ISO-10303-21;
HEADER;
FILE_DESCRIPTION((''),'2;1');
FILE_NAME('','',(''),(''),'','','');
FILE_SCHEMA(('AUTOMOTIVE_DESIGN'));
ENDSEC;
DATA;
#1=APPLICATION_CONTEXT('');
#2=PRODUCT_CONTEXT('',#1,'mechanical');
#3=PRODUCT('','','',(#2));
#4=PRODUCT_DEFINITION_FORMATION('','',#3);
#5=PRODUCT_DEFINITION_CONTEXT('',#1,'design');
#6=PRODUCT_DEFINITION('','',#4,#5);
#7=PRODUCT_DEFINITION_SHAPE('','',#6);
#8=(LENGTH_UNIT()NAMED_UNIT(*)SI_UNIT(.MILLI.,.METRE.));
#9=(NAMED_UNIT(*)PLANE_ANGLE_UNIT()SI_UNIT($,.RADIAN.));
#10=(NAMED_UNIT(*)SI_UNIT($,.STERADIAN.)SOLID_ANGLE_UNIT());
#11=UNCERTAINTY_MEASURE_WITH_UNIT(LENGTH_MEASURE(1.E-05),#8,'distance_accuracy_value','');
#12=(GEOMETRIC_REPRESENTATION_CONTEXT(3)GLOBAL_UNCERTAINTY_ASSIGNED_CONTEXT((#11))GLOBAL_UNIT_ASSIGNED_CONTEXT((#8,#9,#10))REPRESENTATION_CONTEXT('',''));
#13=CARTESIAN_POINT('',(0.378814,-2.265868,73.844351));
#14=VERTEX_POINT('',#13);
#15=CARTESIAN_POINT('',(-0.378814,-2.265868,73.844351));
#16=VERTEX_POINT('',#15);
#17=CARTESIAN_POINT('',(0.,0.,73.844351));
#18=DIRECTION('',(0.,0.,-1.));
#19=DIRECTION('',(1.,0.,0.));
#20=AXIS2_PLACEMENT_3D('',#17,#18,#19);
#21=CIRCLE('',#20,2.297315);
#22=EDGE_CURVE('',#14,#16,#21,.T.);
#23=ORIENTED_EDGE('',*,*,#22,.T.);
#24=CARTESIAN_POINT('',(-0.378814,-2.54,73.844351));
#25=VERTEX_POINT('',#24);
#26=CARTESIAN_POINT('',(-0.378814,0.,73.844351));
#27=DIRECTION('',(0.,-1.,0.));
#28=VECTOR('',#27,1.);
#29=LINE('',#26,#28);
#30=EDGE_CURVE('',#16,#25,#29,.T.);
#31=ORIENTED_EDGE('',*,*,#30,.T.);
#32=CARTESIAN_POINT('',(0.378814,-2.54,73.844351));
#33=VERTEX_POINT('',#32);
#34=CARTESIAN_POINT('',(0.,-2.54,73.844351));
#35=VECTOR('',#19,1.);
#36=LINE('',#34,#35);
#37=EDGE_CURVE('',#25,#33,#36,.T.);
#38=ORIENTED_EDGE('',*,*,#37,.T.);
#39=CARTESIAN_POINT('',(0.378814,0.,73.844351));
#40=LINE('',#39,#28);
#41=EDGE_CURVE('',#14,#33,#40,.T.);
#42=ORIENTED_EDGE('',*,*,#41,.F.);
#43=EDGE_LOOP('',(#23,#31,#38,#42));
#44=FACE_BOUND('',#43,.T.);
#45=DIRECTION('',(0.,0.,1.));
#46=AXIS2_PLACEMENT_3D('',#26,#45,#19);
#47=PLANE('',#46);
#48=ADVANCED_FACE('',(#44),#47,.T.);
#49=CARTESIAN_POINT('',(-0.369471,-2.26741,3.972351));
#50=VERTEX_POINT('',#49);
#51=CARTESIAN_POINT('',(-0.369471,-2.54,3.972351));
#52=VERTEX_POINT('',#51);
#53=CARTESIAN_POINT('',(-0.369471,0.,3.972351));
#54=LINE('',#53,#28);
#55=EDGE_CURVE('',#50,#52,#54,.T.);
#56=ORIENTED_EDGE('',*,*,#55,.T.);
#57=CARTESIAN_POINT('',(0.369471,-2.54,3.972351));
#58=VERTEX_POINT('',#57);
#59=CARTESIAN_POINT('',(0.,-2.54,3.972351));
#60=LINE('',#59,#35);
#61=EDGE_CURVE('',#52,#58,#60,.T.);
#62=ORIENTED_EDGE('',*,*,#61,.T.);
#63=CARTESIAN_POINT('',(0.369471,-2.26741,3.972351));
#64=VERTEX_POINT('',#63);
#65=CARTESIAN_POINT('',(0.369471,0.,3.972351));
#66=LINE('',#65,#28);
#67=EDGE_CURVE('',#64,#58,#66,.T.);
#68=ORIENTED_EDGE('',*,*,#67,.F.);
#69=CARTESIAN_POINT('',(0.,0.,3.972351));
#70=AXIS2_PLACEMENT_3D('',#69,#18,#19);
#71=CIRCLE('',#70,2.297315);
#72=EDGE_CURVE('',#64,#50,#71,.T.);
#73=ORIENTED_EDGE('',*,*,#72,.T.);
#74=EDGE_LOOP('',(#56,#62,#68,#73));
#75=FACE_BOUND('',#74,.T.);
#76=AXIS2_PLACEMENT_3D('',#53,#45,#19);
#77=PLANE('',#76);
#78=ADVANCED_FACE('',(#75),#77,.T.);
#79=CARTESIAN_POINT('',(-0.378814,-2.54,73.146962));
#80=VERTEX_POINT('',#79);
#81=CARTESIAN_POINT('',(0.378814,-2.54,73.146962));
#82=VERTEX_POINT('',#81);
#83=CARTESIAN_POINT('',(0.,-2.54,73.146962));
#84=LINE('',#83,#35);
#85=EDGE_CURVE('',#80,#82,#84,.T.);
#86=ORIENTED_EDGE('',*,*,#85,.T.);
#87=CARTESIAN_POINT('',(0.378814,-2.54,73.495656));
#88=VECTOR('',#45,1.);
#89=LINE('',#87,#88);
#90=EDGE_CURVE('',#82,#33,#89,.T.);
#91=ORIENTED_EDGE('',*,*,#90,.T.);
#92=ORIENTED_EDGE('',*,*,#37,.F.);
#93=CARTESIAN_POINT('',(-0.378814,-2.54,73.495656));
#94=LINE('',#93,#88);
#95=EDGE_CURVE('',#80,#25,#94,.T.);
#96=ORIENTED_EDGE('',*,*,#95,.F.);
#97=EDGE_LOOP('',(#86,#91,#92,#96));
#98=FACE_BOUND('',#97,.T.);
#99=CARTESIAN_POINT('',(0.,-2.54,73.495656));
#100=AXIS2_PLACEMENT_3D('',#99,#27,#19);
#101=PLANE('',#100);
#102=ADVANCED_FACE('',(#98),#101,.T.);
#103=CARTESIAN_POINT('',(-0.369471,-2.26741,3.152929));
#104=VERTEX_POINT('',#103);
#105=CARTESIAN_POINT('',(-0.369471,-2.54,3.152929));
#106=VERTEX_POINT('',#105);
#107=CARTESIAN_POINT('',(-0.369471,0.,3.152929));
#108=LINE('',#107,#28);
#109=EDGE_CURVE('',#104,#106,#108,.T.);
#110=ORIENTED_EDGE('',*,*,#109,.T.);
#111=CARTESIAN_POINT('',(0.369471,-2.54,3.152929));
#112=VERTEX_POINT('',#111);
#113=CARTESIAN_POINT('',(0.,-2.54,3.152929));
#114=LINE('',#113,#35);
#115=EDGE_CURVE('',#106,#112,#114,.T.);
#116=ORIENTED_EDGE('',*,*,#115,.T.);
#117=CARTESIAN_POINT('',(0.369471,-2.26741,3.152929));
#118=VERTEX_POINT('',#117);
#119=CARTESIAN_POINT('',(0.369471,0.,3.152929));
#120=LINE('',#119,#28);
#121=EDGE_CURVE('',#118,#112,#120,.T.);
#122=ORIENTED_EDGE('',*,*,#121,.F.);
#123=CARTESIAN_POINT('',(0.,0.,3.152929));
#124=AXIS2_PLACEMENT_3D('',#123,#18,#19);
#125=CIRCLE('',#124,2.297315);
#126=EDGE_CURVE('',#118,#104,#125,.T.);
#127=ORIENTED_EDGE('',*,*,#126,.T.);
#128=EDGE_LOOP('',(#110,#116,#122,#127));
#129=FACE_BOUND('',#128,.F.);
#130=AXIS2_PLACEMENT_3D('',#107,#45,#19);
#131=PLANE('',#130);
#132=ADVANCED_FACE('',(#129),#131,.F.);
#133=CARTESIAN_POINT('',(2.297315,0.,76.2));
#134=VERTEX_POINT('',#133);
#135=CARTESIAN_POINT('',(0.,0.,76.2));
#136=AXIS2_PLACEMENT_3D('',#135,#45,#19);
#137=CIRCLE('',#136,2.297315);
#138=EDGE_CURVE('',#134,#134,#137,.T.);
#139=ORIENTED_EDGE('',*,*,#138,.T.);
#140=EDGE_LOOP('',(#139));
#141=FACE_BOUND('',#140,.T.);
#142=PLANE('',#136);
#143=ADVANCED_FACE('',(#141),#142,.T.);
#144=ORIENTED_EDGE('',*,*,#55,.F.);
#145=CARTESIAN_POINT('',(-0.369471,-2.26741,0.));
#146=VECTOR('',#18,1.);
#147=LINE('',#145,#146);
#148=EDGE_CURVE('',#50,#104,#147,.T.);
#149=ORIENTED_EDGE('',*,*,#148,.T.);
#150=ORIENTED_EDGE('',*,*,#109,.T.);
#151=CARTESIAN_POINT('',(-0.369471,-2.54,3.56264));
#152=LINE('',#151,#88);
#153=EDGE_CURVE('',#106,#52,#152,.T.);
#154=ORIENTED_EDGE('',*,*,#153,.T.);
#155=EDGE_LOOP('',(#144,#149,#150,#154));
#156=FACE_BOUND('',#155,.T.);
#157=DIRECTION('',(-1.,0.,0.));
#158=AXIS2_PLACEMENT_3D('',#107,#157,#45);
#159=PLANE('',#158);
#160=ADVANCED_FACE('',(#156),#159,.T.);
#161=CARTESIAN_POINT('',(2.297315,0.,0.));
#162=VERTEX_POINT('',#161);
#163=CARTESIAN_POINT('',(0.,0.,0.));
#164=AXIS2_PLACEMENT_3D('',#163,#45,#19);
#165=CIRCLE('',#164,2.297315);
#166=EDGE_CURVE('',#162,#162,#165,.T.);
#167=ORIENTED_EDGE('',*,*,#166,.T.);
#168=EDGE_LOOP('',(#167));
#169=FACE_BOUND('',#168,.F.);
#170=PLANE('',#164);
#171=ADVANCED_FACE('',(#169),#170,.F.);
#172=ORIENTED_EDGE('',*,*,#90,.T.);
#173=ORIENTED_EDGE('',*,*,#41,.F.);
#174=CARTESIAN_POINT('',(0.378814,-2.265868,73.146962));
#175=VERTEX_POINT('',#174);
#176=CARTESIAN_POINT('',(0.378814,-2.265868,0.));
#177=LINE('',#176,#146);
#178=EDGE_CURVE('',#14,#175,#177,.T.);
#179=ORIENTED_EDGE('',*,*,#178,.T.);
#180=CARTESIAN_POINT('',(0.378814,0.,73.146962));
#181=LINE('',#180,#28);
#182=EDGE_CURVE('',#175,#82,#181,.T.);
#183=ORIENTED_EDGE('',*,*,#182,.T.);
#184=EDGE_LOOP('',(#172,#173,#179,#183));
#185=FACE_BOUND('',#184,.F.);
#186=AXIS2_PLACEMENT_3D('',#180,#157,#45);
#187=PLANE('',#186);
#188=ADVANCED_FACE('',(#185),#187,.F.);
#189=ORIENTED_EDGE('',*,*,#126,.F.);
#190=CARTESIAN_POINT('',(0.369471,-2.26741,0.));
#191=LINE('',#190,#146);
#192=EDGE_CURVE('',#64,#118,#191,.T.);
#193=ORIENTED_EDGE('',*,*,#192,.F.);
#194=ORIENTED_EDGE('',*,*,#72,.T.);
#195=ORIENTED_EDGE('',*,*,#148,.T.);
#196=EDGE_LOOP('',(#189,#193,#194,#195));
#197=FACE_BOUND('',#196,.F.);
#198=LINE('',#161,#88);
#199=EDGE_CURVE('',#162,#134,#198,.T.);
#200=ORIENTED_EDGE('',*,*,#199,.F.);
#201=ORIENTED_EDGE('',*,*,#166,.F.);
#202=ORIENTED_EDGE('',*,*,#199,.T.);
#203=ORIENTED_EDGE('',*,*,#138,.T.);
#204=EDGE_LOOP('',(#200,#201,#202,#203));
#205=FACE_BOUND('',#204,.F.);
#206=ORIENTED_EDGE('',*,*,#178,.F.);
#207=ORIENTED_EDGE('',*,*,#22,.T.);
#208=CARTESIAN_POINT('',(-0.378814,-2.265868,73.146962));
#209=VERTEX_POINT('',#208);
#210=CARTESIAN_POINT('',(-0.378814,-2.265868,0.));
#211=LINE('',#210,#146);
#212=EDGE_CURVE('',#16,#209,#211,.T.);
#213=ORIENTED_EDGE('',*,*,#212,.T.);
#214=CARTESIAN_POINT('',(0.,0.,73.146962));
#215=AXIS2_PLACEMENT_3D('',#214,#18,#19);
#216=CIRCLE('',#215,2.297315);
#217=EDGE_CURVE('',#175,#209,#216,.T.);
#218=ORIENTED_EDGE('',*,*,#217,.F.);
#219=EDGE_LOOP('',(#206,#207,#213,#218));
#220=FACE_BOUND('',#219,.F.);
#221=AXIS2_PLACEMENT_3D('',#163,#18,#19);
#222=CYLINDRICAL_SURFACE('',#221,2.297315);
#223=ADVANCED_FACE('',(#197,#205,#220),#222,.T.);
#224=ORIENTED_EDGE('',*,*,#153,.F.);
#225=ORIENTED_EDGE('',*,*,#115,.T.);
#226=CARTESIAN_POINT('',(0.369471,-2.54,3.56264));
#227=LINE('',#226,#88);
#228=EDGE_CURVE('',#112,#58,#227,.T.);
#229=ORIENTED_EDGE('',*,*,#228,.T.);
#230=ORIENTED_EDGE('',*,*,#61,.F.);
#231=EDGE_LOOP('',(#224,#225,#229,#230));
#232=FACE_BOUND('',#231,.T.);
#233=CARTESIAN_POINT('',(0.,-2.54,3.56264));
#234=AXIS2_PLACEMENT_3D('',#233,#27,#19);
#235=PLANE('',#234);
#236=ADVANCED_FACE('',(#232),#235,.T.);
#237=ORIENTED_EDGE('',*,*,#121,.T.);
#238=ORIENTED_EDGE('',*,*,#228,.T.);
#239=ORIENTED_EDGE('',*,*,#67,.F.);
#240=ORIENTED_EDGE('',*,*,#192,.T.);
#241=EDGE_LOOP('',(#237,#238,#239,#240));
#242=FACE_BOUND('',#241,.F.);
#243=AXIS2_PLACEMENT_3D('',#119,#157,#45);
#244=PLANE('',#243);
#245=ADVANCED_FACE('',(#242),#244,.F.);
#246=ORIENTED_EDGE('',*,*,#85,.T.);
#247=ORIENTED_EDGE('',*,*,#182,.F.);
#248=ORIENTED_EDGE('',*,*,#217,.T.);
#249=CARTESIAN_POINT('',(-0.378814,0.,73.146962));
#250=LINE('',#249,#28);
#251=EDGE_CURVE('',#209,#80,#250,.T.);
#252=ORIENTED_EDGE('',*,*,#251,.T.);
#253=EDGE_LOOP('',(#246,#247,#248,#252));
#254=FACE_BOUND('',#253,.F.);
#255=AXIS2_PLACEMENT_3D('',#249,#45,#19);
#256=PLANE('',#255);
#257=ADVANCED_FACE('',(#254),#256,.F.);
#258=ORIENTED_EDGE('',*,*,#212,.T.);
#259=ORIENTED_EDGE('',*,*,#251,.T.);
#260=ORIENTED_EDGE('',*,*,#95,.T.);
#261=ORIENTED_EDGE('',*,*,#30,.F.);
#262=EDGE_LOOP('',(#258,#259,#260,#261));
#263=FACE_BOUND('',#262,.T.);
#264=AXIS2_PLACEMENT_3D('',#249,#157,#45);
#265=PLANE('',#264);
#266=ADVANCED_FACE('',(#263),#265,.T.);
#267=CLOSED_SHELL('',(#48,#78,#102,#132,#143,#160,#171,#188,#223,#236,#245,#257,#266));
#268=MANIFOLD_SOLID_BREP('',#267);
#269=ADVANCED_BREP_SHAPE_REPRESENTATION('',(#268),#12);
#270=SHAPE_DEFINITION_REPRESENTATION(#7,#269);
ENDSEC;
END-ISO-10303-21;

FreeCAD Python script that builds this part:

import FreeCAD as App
import Part
import Sketcher
from FreeCAD import Vector
Q = App.Units.Quantity

doc = App.newDocument("Part")
body = doc.addObject("PartDesign::Body", "Body")

# Sketch on XY plane
sketch1 = body.newObject("Sketcher::SketchObject", "Sketch")
sketch1.AttachmentSupport = (doc.getObject("XY_Plane"), [""])
sketch1.MapMode = "FlatFace"
sketch1.addGeometry(Part.Circle(Vector(0, 0, 0), Vector(0, 0, 1), 2.3), False)
sketch1.addConstraint(Sketcher.Constraint("Coincident", 0, 3, -1, 1))
sketch1.addConstraint(Sketcher.Constraint("Diameter", 0, 4.59463))
pad1 = body.newObject("PartDesign::Pad", "Pad")
pad1.Profile = sketch1
pad1.Length = Q("3 in")

# Sketch on XZ plane
sketch2 = body.newObject("Sketcher::SketchObject", "Sketch001")
sketch2.AttachmentSupport = (doc.getObject("XZ_Plane"), [""])
sketch2.MapMode = "FlatFace"
sketch2.addGeometry(Part.LineSegment(Vector(-0.4, 73.8, 0), Vector(-0.4, 73.1, 0)), False)
sketch2.addGeometry(Part.LineSegment(Vector(-0.4, 73.1, 0), Vector(0.4, 73.1, 0)), False)
sketch2.addGeometry(Part.LineSegment(Vector(0.4, 73.1, 0), Vector(0.4, 73.8, 0)), False)
sketch2.addGeometry(Part.LineSegment(Vector(0.4, 73.8, 0), Vector(-0.4, 73.8, 0)), False)
sketch2.addGeometry(Part.LineSegment(Vector(-0.4, 4, 0), Vector(-0.4, 3.2, 0)), False)
sketch2.addGeometry(Part.LineSegment(Vector(-0.4, 3.2, 0), Vector(0.4, 3.2, 0)), False)
sketch2.addGeometry(Part.LineSegment(Vector(0.4, 3.2, 0), Vector(0.4, 4, 0)), False)
sketch2.addGeometry(Part.LineSegment(Vector(0.4, 4, 0), Vector(-0.4, 4, 0)), False)
sketch2.addConstraint(Sketcher.Constraint("Coincident", 0, 2, 1, 1))
sketch2.addConstraint(Sketcher.Constraint("Coincident", 1, 2, 2, 1))
sketch2.addConstraint(Sketcher.Constraint("Coincident", 2, 2, 3, 1))
sketch2.addConstraint(Sketcher.Constraint("Coincident", 3, 2, 0, 1))
sketch2.addConstraint(Sketcher.Constraint("Coincident", 4, 2, 5, 1))
sketch2.addConstraint(Sketcher.Constraint("Coincident", 5, 2, 6, 1))
sketch2.addConstraint(Sketcher.Constraint("Coincident", 6, 2, 7, 1))
sketch2.addConstraint(Sketcher.Constraint("Coincident", 7, 2, 4, 1))
sketch2.addConstraint(Sketcher.Constraint("Vertical", 0))
sketch2.addConstraint(Sketcher.Constraint("Horizontal", 1))
sketch2.addConstraint(Sketcher.Constraint("Vertical", 2))
sketch2.addConstraint(Sketcher.Constraint("Horizontal", 3))
sketch2.addConstraint(Sketcher.Constraint("Vertical", 4))
sketch2.addConstraint(Sketcher.Constraint("Horizontal", 5))
sketch2.addConstraint(Sketcher.Constraint("Vertical", 6))
sketch2.addConstraint(Sketcher.Constraint("Horizontal", 7))
sketch2.addConstraint(Sketcher.Constraint("DistanceX", 5, 1, 5, 2, 0.738942))
sketch2.addConstraint(Sketcher.Constraint("DistanceY", 0, 2, 0, 1, 0.697389))
sketch2.addConstraint(Sketcher.Constraint("DistanceY", 6, 2, 2, 2, 69.872))
sketch2.addConstraint(Sketcher.Constraint("DistanceX", 1, 1, 1, 2, 0.757628))
sketch2.addConstraint(Sketcher.Constraint("DistanceY", 4, 2, 4, 1, 0.819422))
sketch2.addConstraint(Sketcher.Constraint("DistanceY", -1, 1, 0, 2, 73.146962))
sketch2.addConstraint(Sketcher.Constraint("DistanceX", 4, 2, -1, 1, 0.369471))
sketch2.addConstraint(Sketcher.Constraint("DistanceX", 0, 2, -1, 1, 0.378814))
pad2 = body.newObject("PartDesign::Pad", "Pad001")
pad2.Profile = sketch2
pad2.Length = Q("0.1 in")

doc.recompute()
